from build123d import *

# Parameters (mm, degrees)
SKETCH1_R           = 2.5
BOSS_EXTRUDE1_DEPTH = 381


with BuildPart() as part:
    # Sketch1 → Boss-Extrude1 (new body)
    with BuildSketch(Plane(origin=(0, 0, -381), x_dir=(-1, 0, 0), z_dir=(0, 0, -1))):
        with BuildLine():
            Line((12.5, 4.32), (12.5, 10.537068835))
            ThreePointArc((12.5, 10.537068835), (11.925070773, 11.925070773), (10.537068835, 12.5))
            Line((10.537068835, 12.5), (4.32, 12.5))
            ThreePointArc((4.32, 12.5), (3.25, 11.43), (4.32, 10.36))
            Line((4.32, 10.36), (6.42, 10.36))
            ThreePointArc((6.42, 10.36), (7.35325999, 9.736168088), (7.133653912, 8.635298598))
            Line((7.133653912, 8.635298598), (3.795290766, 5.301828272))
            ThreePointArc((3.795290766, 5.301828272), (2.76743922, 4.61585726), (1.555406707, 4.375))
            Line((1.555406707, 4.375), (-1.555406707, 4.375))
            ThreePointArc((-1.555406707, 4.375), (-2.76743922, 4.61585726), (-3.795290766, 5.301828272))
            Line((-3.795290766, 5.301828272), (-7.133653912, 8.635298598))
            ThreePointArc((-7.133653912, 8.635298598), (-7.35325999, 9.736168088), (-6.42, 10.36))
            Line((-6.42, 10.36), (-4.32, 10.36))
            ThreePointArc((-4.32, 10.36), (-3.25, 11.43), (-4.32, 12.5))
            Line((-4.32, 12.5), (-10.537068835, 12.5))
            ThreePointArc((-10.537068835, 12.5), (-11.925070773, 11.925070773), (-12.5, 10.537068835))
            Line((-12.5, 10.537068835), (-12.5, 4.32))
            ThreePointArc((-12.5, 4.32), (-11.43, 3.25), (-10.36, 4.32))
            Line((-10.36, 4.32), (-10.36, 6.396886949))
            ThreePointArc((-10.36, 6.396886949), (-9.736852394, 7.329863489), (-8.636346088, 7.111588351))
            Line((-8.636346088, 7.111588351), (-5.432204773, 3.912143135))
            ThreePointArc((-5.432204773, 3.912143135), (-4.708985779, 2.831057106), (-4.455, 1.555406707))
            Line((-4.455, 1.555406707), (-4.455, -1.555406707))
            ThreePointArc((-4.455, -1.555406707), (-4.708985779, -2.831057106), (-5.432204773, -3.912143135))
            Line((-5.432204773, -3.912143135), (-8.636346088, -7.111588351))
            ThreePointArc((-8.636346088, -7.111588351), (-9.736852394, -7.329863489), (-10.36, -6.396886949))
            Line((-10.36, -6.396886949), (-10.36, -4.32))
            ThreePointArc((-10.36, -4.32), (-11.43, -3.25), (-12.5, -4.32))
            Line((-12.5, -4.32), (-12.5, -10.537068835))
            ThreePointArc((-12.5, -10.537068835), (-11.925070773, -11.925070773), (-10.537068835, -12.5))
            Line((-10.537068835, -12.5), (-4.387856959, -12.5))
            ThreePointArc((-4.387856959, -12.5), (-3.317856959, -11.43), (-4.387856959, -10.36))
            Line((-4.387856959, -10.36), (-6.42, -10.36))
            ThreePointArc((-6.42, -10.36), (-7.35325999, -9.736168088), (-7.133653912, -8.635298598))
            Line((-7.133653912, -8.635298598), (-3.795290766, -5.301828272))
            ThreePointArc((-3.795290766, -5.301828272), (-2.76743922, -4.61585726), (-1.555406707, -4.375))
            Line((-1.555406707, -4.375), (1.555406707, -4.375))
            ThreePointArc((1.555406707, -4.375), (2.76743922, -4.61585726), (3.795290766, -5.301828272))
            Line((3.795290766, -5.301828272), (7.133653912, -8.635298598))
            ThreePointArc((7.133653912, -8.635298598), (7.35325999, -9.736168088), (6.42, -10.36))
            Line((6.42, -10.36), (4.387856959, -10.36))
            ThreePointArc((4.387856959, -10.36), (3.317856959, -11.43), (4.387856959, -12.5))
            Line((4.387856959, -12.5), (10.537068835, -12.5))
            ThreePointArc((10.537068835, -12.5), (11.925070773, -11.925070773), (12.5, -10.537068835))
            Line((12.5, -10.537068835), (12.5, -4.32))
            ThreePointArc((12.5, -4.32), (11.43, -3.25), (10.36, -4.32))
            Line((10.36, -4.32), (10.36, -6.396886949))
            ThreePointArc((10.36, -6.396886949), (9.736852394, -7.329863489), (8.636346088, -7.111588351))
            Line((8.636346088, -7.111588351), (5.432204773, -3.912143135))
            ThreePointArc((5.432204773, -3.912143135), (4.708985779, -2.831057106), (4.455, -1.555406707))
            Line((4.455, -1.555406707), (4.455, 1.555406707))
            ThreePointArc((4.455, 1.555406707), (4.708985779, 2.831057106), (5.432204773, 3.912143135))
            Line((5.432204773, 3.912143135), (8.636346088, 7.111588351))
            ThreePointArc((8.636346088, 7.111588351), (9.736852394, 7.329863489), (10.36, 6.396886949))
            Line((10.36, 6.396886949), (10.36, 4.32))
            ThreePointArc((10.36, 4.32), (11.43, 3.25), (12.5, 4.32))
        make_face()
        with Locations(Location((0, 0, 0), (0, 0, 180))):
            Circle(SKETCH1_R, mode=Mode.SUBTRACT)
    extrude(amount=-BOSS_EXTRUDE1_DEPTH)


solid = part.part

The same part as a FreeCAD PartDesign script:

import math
import FreeCAD as App
import Part
import Sketcher
Q = App.Units.Quantity

doc = App.newDocument("Part")
body = doc.addObject("PartDesign::Body", "Body")

# Sketch on XY plane
sketch1 = body.newObject("Sketcher::SketchObject", "Sketch")
sketch1.AttachmentSupport = (doc.getObject("XY_Plane"), [""])
sketch1.MapMode = "FlatFace"
sketch1.AttachmentOffset = App.Placement(App.Vector(0, 0, -381), App.Rotation())
sketch1.addGeometry([
    Part.LineSegment(App.Vector(-12.5, 4.3, 0), App.Vector(-12.5, 10.5, 0)),  # 0
    Part.ArcOfCircle(Part.Circle(App.Vector(-10.5, 10.5, 0), App.Vector(0, 0, 1), 2), math.radians(90), math.radians(180)),  # 1
    Part.LineSegment(App.Vector(-10.5, 12.5, 0), App.Vector(-4.3, 12.5, 0)),  # 2
    Part.ArcOfCircle(Part.Circle(App.Vector(-4.3, 11.4, 0), App.Vector(0, 0, 1), 1.1), math.radians(-90), math.radians(90)),  # 3
    Part.LineSegment(App.Vector(-4.3, 10.4, 0), App.Vector(-6.4, 10.4, 0)),  # 4
    Part.ArcOfCircle(Part.Circle(App.Vector(-6.4, 9.3, 0), App.Vector(0, 0, 1), 1), math.radians(90), math.radians(225)),  # 5
    Part.LineSegment(App.Vector(-7.1, 8.6, 0), App.Vector(-3.8, 5.3, 0)),  # 6
    Part.ArcOfCircle(Part.Circle(App.Vector(-1.6, 7.5, 0), App.Vector(0, 0, 1), 3.2), math.radians(-135), math.radians(-90)),  # 7
    Part.LineSegment(App.Vector(-1.6, 4.4, 0), App.Vector(1.6, 4.4, 0)),  # 8
    Part.ArcOfCircle(Part.Circle(App.Vector(1.6, 7.5, 0), App.Vector(0, 0, 1), 3.2), math.radians(-90), math.radians(-45)),  # 9
    Part.LineSegment(App.Vector(3.8, 5.3, 0), App.Vector(7.1, 8.6, 0)),  # 10
    Part.ArcOfCircle(Part.Circle(App.Vector(6.4, 9.3, 0), App.Vector(0, 0, 1), 1), math.radians(-45), math.radians(90)),  # 11
    Part.LineSegment(App.Vector(6.4, 10.4, 0), App.Vector(4.3, 10.4, 0)),  # 12
    Part.ArcOfCircle(Part.Circle(App.Vector(4.3, 11.4, 0), App.Vector(0, 0, 1), 1.1), math.radians(90), math.radians(270)),  # 13
    Part.LineSegment(App.Vector(4.3, 12.5, 0), App.Vector(10.5, 12.5, 0)),  # 14
    Part.ArcOfCircle(Part.Circle(App.Vector(10.5, 10.5, 0), App.Vector(0, 0, 1), 2), math.radians(0), math.radians(90)),  # 15
    Part.LineSegment(App.Vector(12.5, 10.5, 0), App.Vector(12.5, 4.3, 0)),  # 16
    Part.ArcOfCircle(Part.Circle(App.Vector(11.4, 4.3, 0), App.Vector(0, 0, 1), 1.1), math.radians(180), math.radians(360)),  # 17
    Part.LineSegment(App.Vector(10.4, 4.3, 0), App.Vector(10.4, 6.4, 0)),  # 18
    Part.ArcOfCircle(Part.Circle(App.Vector(9.3, 6.4, 0), App.Vector(0, 0, 1), 1), math.radians(0), math.radians(135)),  # 19
    Part.LineSegment(App.Vector(8.6, 7.1, 0), App.Vector(5.4, 3.9, 0)),  # 20
    Part.ArcOfCircle(Part.Circle(App.Vector(7.8, 1.6, 0), App.Vector(0, 0, 1), 3.3), math.radians(135), math.radians(180)),  # 21
    Part.LineSegment(App.Vector(4.5, 1.6, 0), App.Vector(4.5, -1.6, 0)),  # 22
    Part.ArcOfCircle(Part.Circle(App.Vector(7.8, -1.6, 0), App.Vector(0, 0, 1), 3.3), math.radians(180), math.radians(225)),  # 23
    Part.LineSegment(App.Vector(5.4, -3.9, 0), App.Vector(8.6, -7.1, 0)),  # 24
    Part.ArcOfCircle(Part.Circle(App.Vector(9.3, -6.4, 0), App.Vector(0, 0, 1), 1), math.radians(-135), math.radians(0)),  # 25
    Part.LineSegment(App.Vector(10.4, -6.4, 0), App.Vector(10.4, -4.3, 0)),  # 26
    Part.ArcOfCircle(Part.Circle(App.Vector(11.4, -4.3, 0), App.Vector(0, 0, 1), 1.1), math.radians(0), math.radians(180)),  # 27
    Part.LineSegment(App.Vector(12.5, -4.3, 0), App.Vector(12.5, -10.5, 0)),  # 28
    Part.ArcOfCircle(Part.Circle(App.Vector(10.5, -10.5, 0), App.Vector(0, 0, 1), 2), math.radians(-90), math.radians(0)),  # 29
    Part.LineSegment(App.Vector(10.5, -12.5, 0), App.Vector(4.4, -12.5, 0)),  # 30
    Part.ArcOfCircle(Part.Circle(App.Vector(4.4, -11.4, 0), App.Vector(0, 0, 1), 1.1), math.radians(90), math.radians(270)),  # 31
    Part.LineSegment(App.Vector(4.4, -10.4, 0), App.Vector(6.4, -10.4, 0)),  # 32
    Part.ArcOfCircle(Part.Circle(App.Vector(6.4, -9.3, 0), App.Vector(0, 0, 1), 1), math.radians(-90), math.radians(45)),  # 33
    Part.LineSegment(App.Vector(7.1, -8.6, 0), App.Vector(3.8, -5.3, 0)),  # 34
    Part.ArcOfCircle(Part.Circle(App.Vector(1.6, -7.5, 0), App.Vector(0, 0, 1), 3.2), math.radians(45), math.radians(90)),  # 35
    Part.LineSegment(App.Vector(1.6, -4.4, 0), App.Vector(-1.6, -4.4, 0)),  # 36
    Part.ArcOfCircle(Part.Circle(App.Vector(-1.6, -7.5, 0), App.Vector(0, 0, 1), 3.2), math.radians(90), math.radians(135)),  # 37
    Part.LineSegment(App.Vector(-3.8, -5.3, 0), App.Vector(-7.1, -8.6, 0)),  # 38
    Part.ArcOfCircle(Part.Circle(App.Vector(-6.4, -9.3, 0), App.Vector(0, 0, 1), 1), math.radians(135), math.radians(270)),  # 39
    Part.LineSegment(App.Vector(-6.4, -10.4, 0), App.Vector(-4.4, -10.4, 0)),  # 40
    Part.ArcOfCircle(Part.Circle(App.Vector(-4.4, -11.4, 0), App.Vector(0, 0, 1), 1.1), math.radians(-90), math.radians(90)),  # 41
    Part.LineSegment(App.Vector(-4.4, -12.5, 0), App.Vector(-10.5, -12.5, 0)),  # 42
    Part.ArcOfCircle(Part.Circle(App.Vector(-10.5, -10.5, 0), App.Vector(0, 0, 1), 2), math.radians(180), math.radians(270)),  # 43
    Part.LineSegment(App.Vector(-12.5, -10.5, 0), App.Vector(-12.5, -4.3, 0)),  # 44
    Part.ArcOfCircle(Part.Circle(App.Vector(-11.4, -4.3, 0), App.Vector(0, 0, 1), 1.1), math.radians(0), math.radians(180)),  # 45
    Part.LineSegment(App.Vector(-10.4, -4.3, 0), App.Vector(-10.4, -6.4, 0)),  # 46
    Part.ArcOfCircle(Part.Circle(App.Vector(-9.3, -6.4, 0), App.Vector(0, 0, 1), 1), math.radians(-180), math.radians(-45)),  # 47
    Part.LineSegment(App.Vector(-8.6, -7.1, 0), App.Vector(-5.4, -3.9, 0)),  # 48
    Part.ArcOfCircle(Part.Circle(App.Vector(-7.8, -1.6, 0), App.Vector(0, 0, 1), 3.3), math.radians(-45), math.radians(0)),  # 49
    Part.LineSegment(App.Vector(-4.5, -1.6, 0), App.Vector(-4.5, 1.6, 0)),  # 50
    Part.ArcOfCircle(Part.Circle(App.Vector(-7.8, 1.6, 0), App.Vector(0, 0, 1), 3.3), math.radians(0), math.radians(45)),  # 51
    Part.LineSegment(App.Vector(-5.4, 3.9, 0), App.Vector(-8.6, 7.1, 0)),  # 52
    Part.ArcOfCircle(Part.Circle(App.Vector(-9.3, 6.4, 0), App.Vector(0, 0, 1), 1), math.radians(45), math.radians(180)),  # 53
    Part.LineSegment(App.Vector(-10.4, 6.4, 0), App.Vector(-10.4, 4.3, 0)),  # 54
    Part.ArcOfCircle(Part.Circle(App.Vector(-11.4, 4.3, 0), App.Vector(0, 0, 1), 1.1), math.radians(180), math.radians(360)),  # 55
    Part.Circle(App.Vector(0, 0, 0), App.Vector(0, 0, 1), 2.5),  # 56
], False)
sketch1.addConstraint([
    Sketcher.Constraint("Tangent", 0, 2, 1, 2),
    Sketcher.Constraint("Tangent", 1, 1, 2, 1),
    Sketcher.Constraint("Tangent", 2, 2, 3, 2),
    Sketcher.Constraint("Tangent", 3, 1, 4, 1),
    Sketcher.Constraint("Tangent", 4, 2, 5, 1),
    Sketcher.Constraint("Tangent", 5, 2, 6, 1),
    Sketcher.Constraint("Tangent", 6, 2, 7, 1),
    Sketcher.Constraint("Tangent", 7, 2, 8, 1),
    Sketcher.Constraint("Tangent", 8, 2, 9, 1),
    Sketcher.Constraint("Tangent", 9, 2, 10, 1),
    Sketcher.Constraint("Tangent", 10, 2, 11, 1),
    Sketcher.Constraint("Tangent", 11, 2, 12, 1),
    Sketcher.Constraint("Tangent", 12, 2, 13, 2),
    Sketcher.Constraint("Tangent", 13, 1, 14, 1),
    Sketcher.Constraint("Tangent", 14, 2, 15, 2),
    Sketcher.Constraint("Tangent", 15, 1, 16, 1),
    Sketcher.Constraint("Tangent", 16, 2, 17, 2),
    Sketcher.Constraint("Tangent", 17, 1, 18, 1),
    Sketcher.Constraint("Tangent", 18, 2, 19, 1),
    Sketcher.Constraint("Tangent", 19, 2, 20, 1),
    Sketcher.Constraint("Tangent", 20, 2, 21, 1),
    Sketcher.Constraint("Tangent", 21, 2, 22, 1),
    Sketcher.Constraint("Tangent", 22, 2, 23, 1),
    Sketcher.Constraint("Tangent", 23, 2, 24, 1),
    Sketcher.Constraint("Tangent", 24, 2, 25, 1),
    Sketcher.Constraint("Tangent", 25, 2, 26, 1),
    Sketcher.Constraint("Tangent", 26, 2, 27, 2),
    Sketcher.Constraint("Tangent", 27, 1, 28, 1),
    Sketcher.Constraint("Tangent", 28, 2, 29, 2),
    Sketcher.Constraint("Tangent", 29, 1, 30, 1),
    Sketcher.Constraint("Tangent", 30, 2, 31, 2),
    Sketcher.Constraint("Tangent", 31, 1, 32, 1),
    Sketcher.Constraint("Tangent", 32, 2, 33, 1),
    Sketcher.Constraint("Tangent", 33, 2, 34, 1),
    Sketcher.Constraint("Tangent", 34, 2, 35, 1),
    Sketcher.Constraint("Tangent", 35, 2, 36, 1),
    Sketcher.Constraint("Tangent", 36, 2, 37, 1),
    Sketcher.Constraint("Tangent", 37, 2, 38, 1),
    Sketcher.Constraint("Tangent", 38, 2, 39, 1),
    Sketcher.Constraint("Tangent", 39, 2, 40, 1),
    Sketcher.Constraint("Tangent", 40, 2, 41, 2),
    Sketcher.Constraint("Tangent", 41, 1, 42, 1),
    Sketcher.Constraint("Tangent", 42, 2, 43, 2),
    Sketcher.Constraint("Tangent", 43, 1, 44, 1),
    Sketcher.Constraint("Tangent", 44, 2, 45, 2),
    Sketcher.Constraint("Tangent", 45, 1, 46, 1),
    Sketcher.Constraint("Tangent", 46, 2, 47, 1),
    Sketcher.Constraint("Tangent", 47, 2, 48, 1),
    Sketcher.Constraint("Tangent", 48, 2, 49, 1),
    Sketcher.Constraint("Tangent", 49, 2, 50, 1),
    Sketcher.Constraint("Tangent", 50, 2, 51, 1),
    Sketcher.Constraint("Tangent", 51, 2, 52, 1),
    Sketcher.Constraint("Tangent", 52, 2, 53, 1),
    Sketcher.Constraint("Tangent", 53, 2, 54, 1),
    Sketcher.Constraint("Tangent", 54, 2, 55, 2),
    Sketcher.Constraint("Tangent", 55, 1, 0, 1),
    Sketcher.Constraint("Vertical", 0),
    Sketcher.Constraint("Horizontal", 2),
    Sketcher.Constraint("Horizontal", 4),
    Sketcher.Constraint("Horizontal", 8),
    Sketcher.Constraint("Horizontal", 12),
    Sketcher.Constraint("Horizontal", 14),
    Sketcher.Constraint("Vertical", 16),
    Sketcher.Constraint("Vertical", 18),
    Sketcher.Constraint("Vertical", 22),
    Sketcher.Constraint("Vertical", 26),
    Sketcher.Constraint("Vertical", 28),
    Sketcher.Constraint("Horizontal", 30),
    Sketcher.Constraint("Horizontal", 32),
    Sketcher.Constraint("Horizontal", 36),
    Sketcher.Constraint("Horizontal", 40),
    Sketcher.Constraint("Horizontal", 42),
    Sketcher.Constraint("Vertical", 44),
    Sketcher.Constraint("Vertical", 46),
    Sketcher.Constraint("Vertical", 50),
    Sketcher.Constraint("Vertical", 54),
    Sketcher.Constraint("Coincident", 56, 3, -1, 1),
    Sketcher.Constraint("Equal", 7, 9),
    Sketcher.Constraint("Equal", 5, 11),
    Sketcher.Constraint("Equal", 3, 13),
    Sketcher.Constraint("Equal", 1, 15),
    Sketcher.Constraint("Equal", 13, 17),
    Sketcher.Constraint("Equal", 11, 19),
    Sketcher.Constraint("Equal", 21, 23),
    Sketcher.Constraint("Equal", 19, 25),
    Sketcher.Constraint("Equal", 17, 27),
    Sketcher.Constraint("Equal", 15, 29),
    Sketcher.Constraint("Equal", 27, 31),
    Sketcher.Constraint("Equal", 25, 33),
    Sketcher.Constraint("Equal", 9, 35),
    Sketcher.Constraint("Equal", 35, 37),
    Sketcher.Constraint("Equal", 33, 39),
    Sketcher.Constraint("Equal", 31, 41),
    Sketcher.Constraint("Equal", 29, 43),
    Sketcher.Constraint("Equal", 41, 45),
    Sketcher.Constraint("Equal", 39, 47),
    Sketcher.Constraint("Equal", 23, 49),
    Sketcher.Constraint("Equal", 49, 51),
    Sketcher.Constraint("Equal", 47, 53),
    Sketcher.Constraint("Equal", 45, 55),
    Sketcher.Constraint("Symmetric", 1, 3, 29, 3, -1, 1),
    Sketcher.Constraint("Symmetric", 7, 3, 35, 3, -1, 1),
    Sketcher.Constraint("Symmetric", 11, 3, 39, 3, -1, 1),
    Sketcher.Constraint("Symmetric", 17, 3, 45, 3, -1, 1),
    Sketcher.Constraint("Symmetric", 21, 3, 49, 3, -1, 1),
    Sketcher.Constraint("Symmetric", 23, 2, 51, 2, -1, 1),
    Sketcher.Constraint("Symmetric", 5, 3, 11, 3, -2),
    Sketcher.Constraint("Symmetric", 27, 3, 45, 3, -2),
    Sketcher.Constraint("Symmetric", 34, 2, 37, 2, -2),
    Sketcher.Constraint("Symmetric", 24, 2, 47, 2, -2),
    Sketcher.Constraint("Parallel", 10, 20),
    Sketcher.Constraint("Parallel", 6, 24),
    Sketcher.Constraint("Parallel", 20, 38),
    Sketcher.Constraint("Horizontal", 17, 3, 55, 3),
    Sketcher.Constraint("Equal", 4, 12),
    Sketcher.Constraint("Equal", 32, 40),
    Sketcher.Constraint("Equal", 14, 0),
    Sketcher.Constraint("Equal", 36, 22),
    Sketcher.Constraint("Diameter", 56, Q("5 mm")),
    Sketcher.Constraint("Radius", 3, Q("1.07 mm")),
    Sketcher.Constraint("Radius", 5, Q("1.01 mm")),
    Sketcher.Constraint("Radius", 7, Q("3.17 mm")),
    Sketcher.Constraint("DistanceX", 4, 2, 4, 1, Q("2.1 mm")),
    Sketcher.Constraint("DistanceX", 0, 2, -1, 1, Q("12.5 mm")),
    Sketcher.Constraint("DistanceY", -1, 1, 1, 1, Q("12.5 mm")),
    Sketcher.Constraint("DistanceX", 3, 3, -1, 1, Q("4.32 mm")),
    Sketcher.Constraint("Radius", 1, Q("1.962931 mm")),
    Sketcher.Constraint("DistanceY", -1, 1, 7, 3, Q("7.545 mm")),
    Sketcher.Constraint("DistanceX", -1, 1, 21, 2, Q("4.455 mm")),
    Sketcher.Constraint("Radius", 21, Q("3.330487 mm")),
    Sketcher.Constraint("Distance", 6, Q("4.7177 mm")),
    Sketcher.Constraint("DistanceX", 30, 2, 30, 1, Q("6.149212 mm")),
])
pad1 = body.newObject("PartDesign::Pad", "Pad")
pad1.Profile = sketch1
pad1.Length = 381

doc.recompute()
